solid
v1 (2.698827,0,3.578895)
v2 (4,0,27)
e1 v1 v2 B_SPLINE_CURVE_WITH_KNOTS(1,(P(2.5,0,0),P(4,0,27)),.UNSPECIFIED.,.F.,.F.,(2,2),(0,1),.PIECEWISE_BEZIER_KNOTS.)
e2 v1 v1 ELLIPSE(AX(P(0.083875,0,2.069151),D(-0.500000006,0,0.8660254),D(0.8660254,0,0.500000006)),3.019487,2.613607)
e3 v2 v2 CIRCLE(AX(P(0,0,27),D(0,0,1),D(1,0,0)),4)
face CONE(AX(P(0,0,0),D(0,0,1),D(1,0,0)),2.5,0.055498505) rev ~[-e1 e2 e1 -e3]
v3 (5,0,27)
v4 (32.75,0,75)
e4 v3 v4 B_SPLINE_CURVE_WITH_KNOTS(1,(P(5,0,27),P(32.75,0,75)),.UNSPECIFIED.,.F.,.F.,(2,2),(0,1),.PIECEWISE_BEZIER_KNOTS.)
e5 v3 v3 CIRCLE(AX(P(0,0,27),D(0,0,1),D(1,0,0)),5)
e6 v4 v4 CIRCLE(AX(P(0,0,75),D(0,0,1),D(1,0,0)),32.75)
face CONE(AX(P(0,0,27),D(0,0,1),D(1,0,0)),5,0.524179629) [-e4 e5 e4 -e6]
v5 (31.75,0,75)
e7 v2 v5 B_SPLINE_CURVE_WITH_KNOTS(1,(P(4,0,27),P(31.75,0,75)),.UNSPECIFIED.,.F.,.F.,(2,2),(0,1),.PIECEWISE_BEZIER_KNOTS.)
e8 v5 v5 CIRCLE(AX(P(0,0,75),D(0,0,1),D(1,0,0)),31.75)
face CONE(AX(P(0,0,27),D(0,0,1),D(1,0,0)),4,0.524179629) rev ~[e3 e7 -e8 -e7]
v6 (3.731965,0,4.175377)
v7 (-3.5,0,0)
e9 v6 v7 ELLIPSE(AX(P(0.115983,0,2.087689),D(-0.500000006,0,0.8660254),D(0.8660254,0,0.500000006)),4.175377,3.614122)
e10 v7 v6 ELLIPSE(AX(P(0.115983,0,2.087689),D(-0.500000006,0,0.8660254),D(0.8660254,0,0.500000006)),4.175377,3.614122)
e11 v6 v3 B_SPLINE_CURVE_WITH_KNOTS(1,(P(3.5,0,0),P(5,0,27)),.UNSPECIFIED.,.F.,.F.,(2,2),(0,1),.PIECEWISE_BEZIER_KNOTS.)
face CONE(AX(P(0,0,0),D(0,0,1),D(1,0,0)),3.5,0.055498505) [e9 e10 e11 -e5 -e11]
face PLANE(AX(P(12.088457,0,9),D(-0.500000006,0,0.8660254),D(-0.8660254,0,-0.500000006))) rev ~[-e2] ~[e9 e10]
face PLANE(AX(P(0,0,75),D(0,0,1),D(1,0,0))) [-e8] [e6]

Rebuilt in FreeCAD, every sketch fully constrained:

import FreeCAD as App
import Part
import Sketcher

V = App.Vector
Q = App.Units.Quantity


def add_polygon(sketch, points):
    """Adds a closed chain of lines whose ends are joined by coincident constraints."""
    first, n = sketch.GeometryCount, len(points)
    for a, b in zip(points, points[1:] + points[:1]):
        sketch.addGeometry(Part.LineSegment(App.Vector(*a, 0), App.Vector(*b, 0)), False)
    for i in range(n):
        sketch.addConstraint(Sketcher.Constraint("Coincident", first + i, 2, first + (i + 1) % n, 1))

doc = App.newDocument("Part")
params = doc.addObject("Spreadsheet::Sheet", "Params")
for row, (alias, value) in enumerate([
    ("sketch1_diameter", "7 mm"),
    ("sketch2_diameter", "10 mm"),
    ("sketch3_diameter", "5 mm"),
    ("sketch4_diameter", "8 mm"),
    ("sketch5_height", "9 mm"),
    ("pocket1_length", "25 mm"),
    ("sketch6_diameter", "10 mm"),
    ("sketch7_diameter", "65.5 mm"),
    ("sketch8_diameter", "8 mm"),
    ("sketch9_diameter", "63.5 mm"),
], start=1):
    params.set(f"A{row}", alias)
    params.set(f"B{row}", "=" + value)
    params.setAlias(f"B{row}", alias)

body = doc.addObject("PartDesign::Body", "Body")

sketch1 = body.newObject("Sketcher::SketchObject", "Sketch")
sketch1.AttachmentSupport = (doc.getObject("XY_Plane"), [""])
sketch1.MapMode = "FlatFace"
sketch1.addGeometry(Part.Circle(V(0, 0, 0), V(0, 0, 1), 3.5), False)
sketch1.addConstraint([
    Sketcher.Constraint("Coincident", 0, 3, -1, 1),
    Sketcher.Constraint("Diameter", 0, 7.0),
])
sketch1.setExpression("Constraints[1]", "Params.sketch1_diameter")

sketch2 = body.newObject("Sketcher::SketchObject", "Sketch001")
sketch2.AttachmentSupport = (doc.getObject("XY_Plane"), [""])
sketch2.MapMode = "FlatFace"
sketch2.AttachmentOffset = App.Placement(V(0, 0, 27), App.Rotation())
sketch2.addGeometry(Part.Circle(V(0, 0, 0), V(0, 0, 1), 5), False)
sketch2.addConstraint([
    Sketcher.Constraint("Coincident", 0, 3, -1, 1),
    Sketcher.Constraint("Diameter", 0, 10.0),
])
sketch2.setExpression("Constraints[1]", "Params.sketch2_diameter")

additiveloft = body.newObject("PartDesign::AdditiveLoft", "AdditiveLoft")
additiveloft.Profile = sketch1
additiveloft.Sections = [sketch2]

sketch3 = body.newObject("Sketcher::SketchObject", "Sketch002")
sketch3.AttachmentSupport = (doc.getObject("XY_Plane"), [""])
sketch3.MapMode = "FlatFace"
sketch3.addGeometry(Part.Circle(V(0, 0, 0), V(0, 0, 1), 2.5), False)
sketch3.addConstraint([
    Sketcher.Constraint("Coincident", 0, 3, -1, 1),
    Sketcher.Constraint("Diameter", 0, 5.0),
])
sketch3.setExpression("Constraints[1]", "Params.sketch3_diameter")

sketch4 = body.newObject("Sketcher::SketchObject", "Sketch003")
sketch4.AttachmentSupport = (doc.getObject("XY_Plane"), [""])
sketch4.MapMode = "FlatFace"
sketch4.AttachmentOffset = App.Placement(V(0, 0, 27), App.Rotation())
sketch4.addGeometry(Part.Circle(V(0, 0, 0), V(0, 0, 1), 4), False)
sketch4.addConstraint([
    Sketcher.Constraint("Coincident", 0, 3, -1, 1),
    Sketcher.Constraint("Diameter", 0, 8.0),
])
sketch4.setExpression("Constraints[1]", "Params.sketch4_diameter")

subtractiveloft = body.newObject("PartDesign::SubtractiveLoft", "SubtractiveLoft")
subtractiveloft.Profile = sketch3
subtractiveloft.Sections = [sketch4]

sketch5 = body.newObject("Sketcher::SketchObject", "Sketch004")
sketch5.AttachmentSupport = (doc.getObject("XZ_Plane"), [""])
sketch5.MapMode = "FlatFace"
add_polygon(sketch5, [(12.088457, 9), (-3.5, 0), (12.088457, 0)])
sketch5.addConstraint([
    Sketcher.Constraint("Horizontal", 1),
    Sketcher.Constraint("Vertical", 2),
    Sketcher.Constraint("PointOnObject", 0, 2, -1),
    Sketcher.Constraint("DistanceY", 2, 1, 2, 2, 9.0),
    Sketcher.Constraint("Angle", 0, Q("-150 deg")),
    Sketcher.Constraint("DistanceX", 0, 2, -1, 1, 3.5),
])
sketch5.setExpression("Constraints[6]", "Params.sketch5_height")
pocket1 = body.newObject("PartDesign::Pocket", "Pocket")
pocket1.Profile = sketch5
pocket1.setExpression("Length", "Params.pocket1_length")
pocket1.Midplane = True

sketch6 = body.newObject("Sketcher::SketchObject", "Sketch005")
sketch6.AttachmentSupport = (doc.getObject("XY_Plane"), [""])
sketch6.MapMode = "FlatFace"
sketch6.AttachmentOffset = App.Placement(V(0, 0, 27), App.Rotation())
sketch6.addGeometry(Part.Circle(V(0, 0, 0), V(0, 0, 1), 5), False)
sketch6.addConstraint([
    Sketcher.Constraint("Coincident", 0, 3, -1, 1),
    Sketcher.Constraint("Diameter", 0, 10.0),
])
sketch6.setExpression("Constraints[1]", "Params.sketch6_diameter")

sketch7 = body.newObject("Sketcher::SketchObject", "Sketch006")
sketch7.AttachmentSupport = (doc.getObject("XY_Plane"), [""])
sketch7.MapMode = "FlatFace"
sketch7.AttachmentOffset = App.Placement(V(0, 0, 75), App.Rotation())
sketch7.addGeometry(Part.Circle(V(0, 0, 0), V(0, 0, 1), 32.75), False)
sketch7.addConstraint([
    Sketcher.Constraint("Coincident", 0, 3, -1, 1),
    Sketcher.Constraint("Diameter", 0, 65.5),
])
sketch7.setExpression("Constraints[1]", "Params.sketch7_diameter")

additiveloft2 = body.newObject("PartDesign::AdditiveLoft", "AdditiveLoft001")
additiveloft2.Profile = sketch6
additiveloft2.Sections = [sketch7]

sketch8 = body.newObject("Sketcher::SketchObject", "Sketch007")
sketch8.AttachmentSupport = (doc.getObject("XY_Plane"), [""])
sketch8.MapMode = "FlatFace"
sketch8.AttachmentOffset = App.Placement(V(0, 0, 27), App.Rotation())
sketch8.addGeometry(Part.Circle(V(0, 0, 0), V(0, 0, 1), 4), False)
sketch8.addConstraint([
    Sketcher.Constraint("Coincident", 0, 3, -1, 1),
    Sketcher.Constraint("Diameter", 0, 8.0),
])
sketch8.setExpression("Constraints[1]", "Params.sketch8_diameter")

sketch9 = body.newObject("Sketcher::SketchObject", "Sketch008")
sketch9.AttachmentSupport = (doc.getObject("XY_Plane"), [""])
sketch9.MapMode = "FlatFace"
sketch9.AttachmentOffset = App.Placement(V(0, 0, 75), App.Rotation())
sketch9.addGeometry(Part.Circle(V(0, 0, 0), V(0, 0, 1), 31.75), False)
sketch9.addConstraint([
    Sketcher.Constraint("Coincident", 0, 3, -1, 1),
    Sketcher.Constraint("Diameter", 0, 63.5),
])
sketch9.setExpression("Constraints[1]", "Params.sketch9_diameter")

subtractiveloft2 = body.newObject("PartDesign::SubtractiveLoft", "SubtractiveLoft001")
subtractiveloft2.Profile = sketch8
subtractiveloft2.Sections = [sketch9]

doc.recompute()
